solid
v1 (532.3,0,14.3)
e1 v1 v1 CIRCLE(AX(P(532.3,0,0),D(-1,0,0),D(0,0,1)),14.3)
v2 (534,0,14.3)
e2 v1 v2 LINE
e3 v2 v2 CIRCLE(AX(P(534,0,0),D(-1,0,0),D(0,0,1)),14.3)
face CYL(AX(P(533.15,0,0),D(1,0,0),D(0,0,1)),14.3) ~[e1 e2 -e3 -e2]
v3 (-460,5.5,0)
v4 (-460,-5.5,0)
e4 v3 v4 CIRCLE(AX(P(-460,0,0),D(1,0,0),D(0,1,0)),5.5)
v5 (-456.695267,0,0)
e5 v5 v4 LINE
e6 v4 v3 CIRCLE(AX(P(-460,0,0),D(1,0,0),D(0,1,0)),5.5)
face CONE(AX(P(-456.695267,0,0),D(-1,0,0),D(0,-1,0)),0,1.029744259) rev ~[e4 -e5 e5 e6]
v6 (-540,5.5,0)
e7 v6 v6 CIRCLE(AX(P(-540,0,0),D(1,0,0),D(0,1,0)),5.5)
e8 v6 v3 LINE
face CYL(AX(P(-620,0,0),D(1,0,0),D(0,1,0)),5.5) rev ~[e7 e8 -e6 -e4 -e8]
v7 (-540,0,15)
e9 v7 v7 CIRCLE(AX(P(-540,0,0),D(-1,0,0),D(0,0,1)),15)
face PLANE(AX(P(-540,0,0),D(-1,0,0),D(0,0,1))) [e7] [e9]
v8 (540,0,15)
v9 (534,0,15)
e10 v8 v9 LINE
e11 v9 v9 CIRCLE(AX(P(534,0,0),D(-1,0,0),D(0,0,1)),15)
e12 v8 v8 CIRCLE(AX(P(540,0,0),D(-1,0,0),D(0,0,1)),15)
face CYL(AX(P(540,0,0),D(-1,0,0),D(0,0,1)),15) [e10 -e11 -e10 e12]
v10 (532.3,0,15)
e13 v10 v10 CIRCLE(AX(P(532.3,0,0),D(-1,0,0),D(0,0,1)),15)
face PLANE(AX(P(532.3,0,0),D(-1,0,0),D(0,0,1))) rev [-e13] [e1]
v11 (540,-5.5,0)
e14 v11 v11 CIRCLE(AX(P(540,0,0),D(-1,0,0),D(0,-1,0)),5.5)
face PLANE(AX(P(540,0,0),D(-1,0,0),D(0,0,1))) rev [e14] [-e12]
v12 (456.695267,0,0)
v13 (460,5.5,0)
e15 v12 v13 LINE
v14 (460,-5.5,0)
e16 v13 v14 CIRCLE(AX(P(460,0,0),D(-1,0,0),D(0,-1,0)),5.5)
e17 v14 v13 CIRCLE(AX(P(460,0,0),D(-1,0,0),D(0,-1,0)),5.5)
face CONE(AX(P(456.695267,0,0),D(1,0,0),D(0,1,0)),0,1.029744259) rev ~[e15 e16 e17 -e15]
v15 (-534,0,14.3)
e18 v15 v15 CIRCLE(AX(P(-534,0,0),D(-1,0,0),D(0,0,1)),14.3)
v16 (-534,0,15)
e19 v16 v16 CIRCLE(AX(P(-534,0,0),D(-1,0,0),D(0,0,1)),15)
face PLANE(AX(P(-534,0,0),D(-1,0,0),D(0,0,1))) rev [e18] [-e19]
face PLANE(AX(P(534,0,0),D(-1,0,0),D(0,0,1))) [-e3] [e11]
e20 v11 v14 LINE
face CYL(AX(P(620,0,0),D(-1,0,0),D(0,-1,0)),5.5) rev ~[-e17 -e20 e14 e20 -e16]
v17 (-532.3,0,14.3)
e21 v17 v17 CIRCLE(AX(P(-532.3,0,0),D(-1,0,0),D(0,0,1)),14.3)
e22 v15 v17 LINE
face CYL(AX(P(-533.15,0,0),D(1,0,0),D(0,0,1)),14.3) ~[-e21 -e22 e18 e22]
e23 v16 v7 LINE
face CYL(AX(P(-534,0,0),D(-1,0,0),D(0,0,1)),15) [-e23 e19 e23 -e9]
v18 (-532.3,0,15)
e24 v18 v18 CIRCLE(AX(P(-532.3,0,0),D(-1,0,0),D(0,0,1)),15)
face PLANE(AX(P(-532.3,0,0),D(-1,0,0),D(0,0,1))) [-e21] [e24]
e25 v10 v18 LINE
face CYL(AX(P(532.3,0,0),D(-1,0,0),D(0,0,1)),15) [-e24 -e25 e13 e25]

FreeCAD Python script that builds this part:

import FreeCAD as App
import Part
import Sketcher

V = App.Vector
Q = App.Units.Quantity

doc = App.newDocument("Part")
body = doc.addObject("PartDesign::Body", "Body")

sketch1 = body.newObject("Sketcher::SketchObject", "Sketch")
sketch1.AttachmentSupport = (doc.getObject("XZ_Plane"), [""])
sketch1.MapMode = "FlatFace"
sketch1.addGeometry([
    Part.LineSegment(V(540, 0, 0), V(540, 15, 0)),
    Part.LineSegment(V(540, 15, 0), V(534, 15, 0)),
    Part.LineSegment(V(534, 15, 0), V(534, 14.3, 0)),
    Part.LineSegment(V(534, 14.3, 0), V(532.3, 14.3, 0)),
    Part.LineSegment(V(532.3, 14.3, 0), V(532.3, 15, 0)),
    Part.LineSegment(V(532.3, 15, 0), V(-532.3, 15, 0)),
    Part.LineSegment(V(-532.3, 15, 0), V(-532.3, 14.3, 0)),
    Part.LineSegment(V(-532.3, 14.3, 0), V(-534, 14.3, 0)),
    Part.LineSegment(V(-534, 14.3, 0), V(-534, 15, 0)),
    Part.LineSegment(V(-534, 15, 0), V(-540, 15, 0)),
    Part.LineSegment(V(-540, 15, 0), V(-540, 0, 0)),
    Part.LineSegment(V(-540, 0, 0), V(540, 0, 0)),
], False)
sketch1.addConstraint([
    Sketcher.Constraint("Coincident", 0, 2, 1, 1),
    Sketcher.Constraint("Coincident", 1, 2, 2, 1),
    Sketcher.Constraint("Coincident", 2, 2, 3, 1),
    Sketcher.Constraint("Coincident", 3, 2, 4, 1),
    Sketcher.Constraint("Coincident", 4, 2, 5, 1),
    Sketcher.Constraint("Coincident", 5, 2, 6, 1),
    Sketcher.Constraint("Coincident", 6, 2, 7, 1),
    Sketcher.Constraint("Coincident", 7, 2, 8, 1),
    Sketcher.Constraint("Coincident", 8, 2, 9, 1),
    Sketcher.Constraint("Coincident", 9, 2, 10, 1),
    Sketcher.Constraint("Coincident", 10, 2, 11, 1),
    Sketcher.Constraint("Coincident", 11, 2, 0, 1),
    Sketcher.Constraint("Vertical", 0),
    Sketcher.Constraint("Horizontal", 1),
    Sketcher.Constraint("Vertical", 2),
    Sketcher.Constraint("Horizontal", 3),
    Sketcher.Constraint("Vertical", 4),
    Sketcher.Constraint("Horizontal", 5),
    Sketcher.Constraint("Vertical", 6),
    Sketcher.Constraint("Horizontal", 7),
    Sketcher.Constraint("Vertical", 8),
    Sketcher.Constraint("Horizontal", 9),
    Sketcher.Constraint("Vertical", 10),
    Sketcher.Constraint("Horizontal", 11),
    Sketcher.Constraint("Symmetric", 10, 2, 11, 2, -1, 1),
    Sketcher.Constraint("Symmetric", 3, 2, 6, 2, -2),
    Sketcher.Constraint("Symmetric", 1, 2, 8, 2, -2),
    Sketcher.Constraint("Horizontal", 1, 2, 4, 2),
    Sketcher.Constraint("DistanceX", 1, 2, 1, 1, Q("6 mm")),
    Sketcher.Constraint("DistanceX", 11, 1, 11, 2, Q("1080 mm")),
    Sketcher.Constraint("DistanceY", 0, 1, 0, 2, Q("15 mm")),
    Sketcher.Constraint("DistanceX", 3, 2, 3, 1, Q("1.7 mm")),
    Sketcher.Constraint("DistanceY", 2, 2, 2, 1, Q("0.7 mm")),
])
revolution = body.newObject("PartDesign::Revolution", "Revolution")
revolution.Profile = sketch1
revolution.ReferenceAxis = (sketch1, ["H_Axis"])
revolution.Angle = 360

sketch2 = body.newObject("Sketcher::SketchObject", "Sketch001")
sketch2.AttachmentSupport = (doc.getObject("YZ_Plane"), [""])
sketch2.MapMode = "FlatFace"
sketch2.AttachmentOffset = App.Placement(V(0, 0, -540), App.Rotation())
sketch2.addGeometry(Part.Circle(V(0, 0, 0), V(0, 0, 1), 5.5), False)
sketch2.addConstraint([
    Sketcher.Constraint("Coincident", 0, 3, -1, 1),
    Sketcher.Constraint("Diameter", 0, Q("11 mm")),
])
doc.recompute()
hole = body.newObject("PartDesign::Hole", "Hole")
hole.Profile = sketch2
hole.ThreadType = "None"
hole.Diameter = 11
hole.DepthType = "Dimension"
hole.Depth = 80
hole.DrillPoint = "Angled"
hole.DrillPointAngle = 118
hole.Reversed = True

sketch3 = body.newObject("Sketcher::SketchObject", "Sketch002")
sketch3.AttachmentSupport = (doc.getObject("YZ_Plane"), [""])
sketch3.MapMode = "FlatFace"
sketch3.AttachmentOffset = App.Placement(V(0, 0, 540), App.Rotation())
sketch3.addGeometry(Part.Circle(V(0, 0, 0), V(0, 0, 1), 5.5), False)
sketch3.addConstraint([
    Sketcher.Constraint("Coincident", 0, 3, -1, 1),
    Sketcher.Constraint("Diameter", 0, Q("11 mm")),
])
doc.recompute()
hole2 = body.newObject("PartDesign::Hole", "Hole001")
hole2.Profile = sketch3
hole2.ThreadType = "None"
hole2.Diameter = 11
hole2.DepthType = "Dimension"
hole2.Depth = 80
hole2.DrillPoint = "Angled"
hole2.DrillPointAngle = 118

doc.recompute()
